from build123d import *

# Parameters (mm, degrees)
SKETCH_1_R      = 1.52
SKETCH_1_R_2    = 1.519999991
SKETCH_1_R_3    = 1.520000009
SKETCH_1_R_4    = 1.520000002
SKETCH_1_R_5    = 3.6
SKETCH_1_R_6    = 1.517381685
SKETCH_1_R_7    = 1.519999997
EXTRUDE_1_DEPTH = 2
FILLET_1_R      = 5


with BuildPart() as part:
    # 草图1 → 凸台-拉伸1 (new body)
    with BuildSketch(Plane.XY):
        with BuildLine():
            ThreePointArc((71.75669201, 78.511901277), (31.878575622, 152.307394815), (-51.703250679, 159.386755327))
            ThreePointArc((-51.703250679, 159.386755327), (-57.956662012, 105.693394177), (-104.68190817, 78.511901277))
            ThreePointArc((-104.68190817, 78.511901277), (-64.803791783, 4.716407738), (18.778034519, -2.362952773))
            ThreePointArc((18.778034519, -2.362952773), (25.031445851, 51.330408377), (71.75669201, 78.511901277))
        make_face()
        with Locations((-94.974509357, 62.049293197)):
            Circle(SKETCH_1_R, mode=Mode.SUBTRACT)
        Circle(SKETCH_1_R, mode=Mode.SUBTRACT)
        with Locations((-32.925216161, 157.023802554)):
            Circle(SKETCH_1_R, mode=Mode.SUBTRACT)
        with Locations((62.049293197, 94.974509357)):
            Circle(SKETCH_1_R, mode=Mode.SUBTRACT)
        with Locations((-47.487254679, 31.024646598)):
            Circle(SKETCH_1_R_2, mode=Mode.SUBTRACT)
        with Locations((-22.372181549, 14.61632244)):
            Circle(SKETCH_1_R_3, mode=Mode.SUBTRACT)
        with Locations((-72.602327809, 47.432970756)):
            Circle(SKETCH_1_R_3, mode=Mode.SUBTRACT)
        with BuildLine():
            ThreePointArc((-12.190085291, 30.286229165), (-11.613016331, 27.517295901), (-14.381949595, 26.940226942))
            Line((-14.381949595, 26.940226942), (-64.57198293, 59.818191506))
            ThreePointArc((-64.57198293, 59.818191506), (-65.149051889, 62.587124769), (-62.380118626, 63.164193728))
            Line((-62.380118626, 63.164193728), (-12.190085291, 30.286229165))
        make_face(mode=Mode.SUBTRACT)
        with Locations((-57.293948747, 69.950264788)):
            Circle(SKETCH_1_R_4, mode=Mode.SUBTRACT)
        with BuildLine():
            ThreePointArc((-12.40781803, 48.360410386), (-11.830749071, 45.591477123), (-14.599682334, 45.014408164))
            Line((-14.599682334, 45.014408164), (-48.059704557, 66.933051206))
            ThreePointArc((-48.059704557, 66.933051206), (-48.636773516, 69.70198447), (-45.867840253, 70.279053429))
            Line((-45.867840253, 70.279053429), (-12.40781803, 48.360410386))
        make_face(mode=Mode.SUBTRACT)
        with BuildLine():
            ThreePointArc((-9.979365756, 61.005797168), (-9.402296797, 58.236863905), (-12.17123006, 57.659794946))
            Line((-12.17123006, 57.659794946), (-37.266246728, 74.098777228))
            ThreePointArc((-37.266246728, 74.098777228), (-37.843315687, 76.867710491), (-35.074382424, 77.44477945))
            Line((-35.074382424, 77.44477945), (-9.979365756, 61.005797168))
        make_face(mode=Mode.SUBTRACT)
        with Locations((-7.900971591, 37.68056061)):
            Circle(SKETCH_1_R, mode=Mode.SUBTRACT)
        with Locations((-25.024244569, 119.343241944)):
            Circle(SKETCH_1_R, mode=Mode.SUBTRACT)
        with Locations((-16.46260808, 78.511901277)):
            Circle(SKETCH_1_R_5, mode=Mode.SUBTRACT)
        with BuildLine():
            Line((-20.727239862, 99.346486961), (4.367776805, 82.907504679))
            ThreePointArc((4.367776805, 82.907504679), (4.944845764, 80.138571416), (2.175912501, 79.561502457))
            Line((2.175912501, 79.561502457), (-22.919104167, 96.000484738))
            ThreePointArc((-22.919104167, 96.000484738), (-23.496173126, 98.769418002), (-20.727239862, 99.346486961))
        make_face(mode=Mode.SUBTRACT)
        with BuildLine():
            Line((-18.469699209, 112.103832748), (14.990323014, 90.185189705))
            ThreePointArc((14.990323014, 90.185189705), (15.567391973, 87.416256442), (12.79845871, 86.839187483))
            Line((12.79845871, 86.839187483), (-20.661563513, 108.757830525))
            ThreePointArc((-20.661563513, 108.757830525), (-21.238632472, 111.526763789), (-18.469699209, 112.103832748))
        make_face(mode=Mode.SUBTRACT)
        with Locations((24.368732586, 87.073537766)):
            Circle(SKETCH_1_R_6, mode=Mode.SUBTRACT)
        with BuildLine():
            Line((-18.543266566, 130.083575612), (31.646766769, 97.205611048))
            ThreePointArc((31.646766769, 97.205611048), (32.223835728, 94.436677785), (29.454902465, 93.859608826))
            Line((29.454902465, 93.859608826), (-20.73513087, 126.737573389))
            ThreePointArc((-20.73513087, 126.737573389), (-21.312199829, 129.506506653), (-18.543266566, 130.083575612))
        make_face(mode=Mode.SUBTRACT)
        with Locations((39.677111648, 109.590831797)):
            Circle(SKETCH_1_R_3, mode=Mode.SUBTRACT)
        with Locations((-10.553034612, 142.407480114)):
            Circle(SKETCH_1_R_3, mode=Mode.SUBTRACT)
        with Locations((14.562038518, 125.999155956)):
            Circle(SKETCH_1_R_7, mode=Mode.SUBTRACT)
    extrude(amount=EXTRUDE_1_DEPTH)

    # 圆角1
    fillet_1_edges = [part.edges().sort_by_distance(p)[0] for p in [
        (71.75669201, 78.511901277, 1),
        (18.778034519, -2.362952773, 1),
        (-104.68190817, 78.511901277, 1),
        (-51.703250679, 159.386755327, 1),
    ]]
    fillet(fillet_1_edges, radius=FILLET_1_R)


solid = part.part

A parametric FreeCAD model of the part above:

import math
import FreeCAD as App
import Part
import Sketcher
Q = App.Units.Quantity


def edges_at(feature, points):
    """Names of the edges that pass closest to the given points."""
    edges = feature.Shape.Edges
    near = lambda p: min(range(len(edges)), key=lambda i: edges[i].distToShape(Part.Vertex(*p))[0])
    return sorted({f"Edge{near(p) + 1}" for p in points})

doc = App.newDocument("Part")
body = doc.addObject("PartDesign::Body", "Body")

# Sketch on XY plane
sketch1 = body.newObject("Sketcher::SketchObject", "Sketch")
sketch1.AttachmentSupport = (doc.getObject("XY_Plane"), [""])
sketch1.MapMode = "FlatFace"
sketch1.addGeometry(Part.ArcOfCircle(Part.Circle(App.Vector(-16.462608, 78.511901, 0), App.Vector(0, 0, 1), 88.2193), math.radians(0), math.radians(113.544822)), False)
sketch1.addGeometry(Part.ArcOfCircle(Part.Circle(App.Vector(-108.477669, 138.78817, 0), App.Vector(0, 0, 1), 60.395665), math.radians(-86.396687), math.radians(19.941509)), False)
sketch1.addGeometry(Part.ArcOfCircle(Part.Circle(App.Vector(-16.462608, 78.511901, 0), App.Vector(0, 0, 1), 88.2193), math.radians(180), math.radians(293.544822)), False)
sketch1.addGeometry(Part.ArcOfCircle(Part.Circle(App.Vector(75.552453, 18.235633, 0), App.Vector(0, 0, 1), 60.395665), math.radians(93.603313), math.radians(199.941509)), False)
sketch1.addGeometry(Part.Circle(App.Vector(-22.372182, 14.616322, 0), App.Vector(0, 0, 1), 1.52), False)
sketch1.addGeometry(Part.Circle(App.Vector(-47.487255, 31.024647, 0), App.Vector(0, 0, 1), 1.52), False)
sketch1.addGeometry(Part.Circle(App.Vector(-72.602328, 47.432971, 0), App.Vector(0, 0, 1), 1.52), False)
sketch1.addGeometry(Part.Circle(App.Vector(-94.974509, 62.049293, 0), App.Vector(0, 0, 1), 1.52), False)
sketch1.addGeometry(Part.Circle(App.Vector(-57.293949, 69.950265, 0), App.Vector(0, 0, 1), 1.52), False)
sketch1.addGeometry(Part.LineSegment(App.Vector(-62.380119, 63.164194, 0), App.Vector(-12.190085, 30.286229, 0)), False)
sketch1.addGeometry(Part.ArcOfCircle(Part.Circle(App.Vector(-13.286017, 28.613228, 0), App.Vector(0, 0, 1), 2), math.radians(-123.227589), math.radians(56.772411)), False)
sketch1.addGeometry(Part.LineSegment(App.Vector(-14.38195, 26.940227, 0), App.Vector(-64.571983, 59.818192, 0)), False)
sketch1.addGeometry(Part.ArcOfCircle(Part.Circle(App.Vector(-63.476051, 61.491193, 0), App.Vector(0, 0, 1), 2), math.radians(56.772411), math.radians(236.772411)), False)
sketch1.addGeometry(Part.LineSegment(App.Vector(-45.86784, 70.279053, 0), App.Vector(-12.407818, 48.36041, 0)), False)
sketch1.addGeometry(Part.ArcOfCircle(Part.Circle(App.Vector(-13.50375, 46.687409, 0), App.Vector(0, 0, 1), 2), math.radians(-123.227589), math.radians(56.772411)), False)
sketch1.addGeometry(Part.LineSegment(App.Vector(-14.599682, 45.014408, 0), App.Vector(-48.059705, 66.933051, 0)), False)
sketch1.addGeometry(Part.ArcOfCircle(Part.Circle(App.Vector(-46.963772, 68.606052, 0), App.Vector(0, 0, 1), 2), math.radians(56.772411), math.radians(236.772411)), False)
sketch1.addGeometry(Part.LineSegment(App.Vector(-35.074382, 77.444779, 0), App.Vector(-9.979366, 61.005797, 0)), False)
sketch1.addGeometry(Part.ArcOfCircle(Part.Circle(App.Vector(-11.075298, 59.332796, 0), App.Vector(0, 0, 1), 2), math.radians(-123.227589), math.radians(56.772411)), False)
sketch1.addGeometry(Part.LineSegment(App.Vector(-12.17123, 57.659795, 0), App.Vector(-37.266247, 74.098777, 0)), False)
sketch1.addGeometry(Part.ArcOfCircle(Part.Circle(App.Vector(-36.170315, 75.771778, 0), App.Vector(0, 0, 1), 2), math.radians(56.772411), math.radians(236.772411)), False)
sketch1.addGeometry(Part.Circle(App.Vector(0, 0, 0), App.Vector(0, 0, 1), 1.52), False)
sketch1.addGeometry(Part.Circle(App.Vector(-7.900972, 37.680561, 0), App.Vector(0, 0, 1), 1.52), False)
sketch1.addGeometry(Part.Circle(App.Vector(-25.024245, 119.343242, 0), App.Vector(0, 0, 1), 1.52), False)
sketch1.addGeometry(Part.Circle(App.Vector(-32.925216, 157.023803, 0), App.Vector(0, 0, 1), 1.52), False)
sketch1.addGeometry(Part.Circle(App.Vector(-16.462608, 78.511901, 0), App.Vector(0, 0, 1), 3.6), False)
sketch1.addGeometry(Part.ArcOfCircle(Part.Circle(App.Vector(-21.823172, 97.673486, 0), App.Vector(0, 0, 1), 2), math.radians(56.772411), math.radians(236.772411)), False)
sketch1.addGeometry(Part.LineSegment(App.Vector(-20.72724, 99.346487, 0), App.Vector(4.367777, 82.907505, 0)), False)
sketch1.addGeometry(Part.ArcOfCircle(Part.Circle(App.Vector(3.271845, 81.234504, 0), App.Vector(0, 0, 1), 2), math.radians(-123.227589), math.radians(56.772411)), False)
sketch1.addGeometry(Part.LineSegment(App.Vector(2.175913, 79.561502, 0), App.Vector(-22.919104, 96.000485, 0)), False)
sketch1.addGeometry(Part.ArcOfCircle(Part.Circle(App.Vector(-19.565631, 110.430832, 0), App.Vector(0, 0, 1), 2), math.radians(56.772411), math.radians(236.772411)), False)
sketch1.addGeometry(Part.LineSegment(App.Vector(-18.469699, 112.103833, 0), App.Vector(14.990323, 90.18519, 0)), False)
sketch1.addGeometry(Part.ArcOfCircle(Part.Circle(App.Vector(13.894391, 88.512189, 0), App.Vector(0, 0, 1), 2), math.radians(-123.227589), math.radians(56.772411)), False)
sketch1.addGeometry(Part.LineSegment(App.Vector(12.798459, 86.839187, 0), App.Vector(-20.661564, 108.757831, 0)), False)
sketch1.addGeometry(Part.ArcOfCircle(Part.Circle(App.Vector(-19.639199, 128.410574, 0), App.Vector(0, 0, 1), 2), math.radians(56.772411), math.radians(236.772411)), False)
sketch1.addGeometry(Part.LineSegment(App.Vector(-18.543267, 130.083576, 0), App.Vector(31.646767, 97.205611, 0)), False)
sketch1.addGeometry(Part.ArcOfCircle(Part.Circle(App.Vector(30.550835, 95.53261, 0), App.Vector(0, 0, 1), 2), math.radians(-123.227589), math.radians(56.772411)), False)
sketch1.addGeometry(Part.LineSegment(App.Vector(29.454902, 93.859609, 0), App.Vector(-20.735131, 126.737573, 0)), False)
sketch1.addGeometry(Part.Circle(App.Vector(24.368733, 87.073538, 0), App.Vector(0, 0, 1), 1.517382), False)
sketch1.addGeometry(Part.Circle(App.Vector(62.049293, 94.974509, 0), App.Vector(0, 0, 1), 1.52), False)
sketch1.addGeometry(Part.Circle(App.Vector(39.677112, 109.590832, 0), App.Vector(0, 0, 1), 1.52), False)
sketch1.addGeometry(Part.Circle(App.Vector(14.562039, 125.999156, 0), App.Vector(0, 0, 1), 1.52), False)
sketch1.addGeometry(Part.Circle(App.Vector(-10.553035, 142.40748, 0), App.Vector(0, 0, 1), 1.52), False)
sketch1.addConstraint(Sketcher.Constraint("Coincident", 0, 2, 1, 2))
sketch1.addConstraint(Sketcher.Constraint("Coincident", 1, 1, 2, 1))
sketch1.addConstraint(Sketcher.Constraint("Coincident", 2, 2, 3, 2))
sketch1.addConstraint(Sketcher.Constraint("Coincident", 3, 1, 0, 1))
sketch1.addConstraint(Sketcher.Constraint("Tangent", 9, 2, 10, 2))
sketch1.addConstraint(Sketcher.Constraint("Tangent", 10, 1, 11, 1))
sketch1.addConstraint(Sketcher.Constraint("Tangent", 11, 2, 12, 2))
sketch1.addConstraint(Sketcher.Constraint("Tangent", 12, 1, 9, 1))
sketch1.addConstraint(Sketcher.Constraint("Tangent", 13, 2, 14, 2))
sketch1.addConstraint(Sketcher.Constraint("Tangent", 14, 1, 15, 1))
sketch1.addConstraint(Sketcher.Constraint("Tangent", 15, 2, 16, 2))
sketch1.addConstraint(Sketcher.Constraint("Tangent", 16, 1, 13, 1))
sketch1.addConstraint(Sketcher.Constraint("Tangent", 17, 2, 18, 2))
sketch1.addConstraint(Sketcher.Constraint("Tangent", 18, 1, 19, 1))
sketch1.addConstraint(Sketcher.Constraint("Tangent", 19, 2, 20, 2))
sketch1.addConstraint(Sketcher.Constraint("Tangent", 20, 1, 17, 1))
sketch1.addConstraint(Sketcher.Constraint("Tangent", 26, 1, 27, 1))
sketch1.addConstraint(Sketcher.Constraint("Tangent", 27, 2, 28, 2))
sketch1.addConstraint(Sketcher.Constraint("Tangent", 28, 1, 29, 1))
sketch1.addConstraint(Sketcher.Constraint("Tangent", 29, 2, 26, 2))
sketch1.addConstraint(Sketcher.Constraint("Tangent", 30, 1, 31, 1))
sketch1.addConstraint(Sketcher.Constraint("Tangent", 31, 2, 32, 2))
sketch1.addConstraint(Sketcher.Constraint("Tangent", 32, 1, 33, 1))
sketch1.addConstraint(Sketcher.Constraint("Tangent", 33, 2, 30, 2))
sketch1.addConstraint(Sketcher.Constraint("Tangent", 34, 1, 35, 1))
sketch1.addConstraint(Sketcher.Constraint("Tangent", 35, 2, 36, 2))
sketch1.addConstraint(Sketcher.Constraint("Tangent", 36, 1, 37, 1))
sketch1.addConstraint(Sketcher.Constraint("Tangent", 37, 2, 34, 2))
sketch1.addConstraint(Sketcher.Constraint("Coincident", 21, 3, -1, 1))
sketch1.addConstraint(Sketcher.Constraint("Coincident", 2, 3, 0, 3))
sketch1.addConstraint(Sketcher.Constraint("Coincident", 25, 3, 0, 3))
sketch1.addConstraint(Sketcher.Constraint("Equal", 0, 2))
sketch1.addConstraint(Sketcher.Constraint("Equal", 1, 3))
sketch1.addConstraint(Sketcher.Constraint("Equal", 4, 5))
sketch1.addConstraint(Sketcher.Constraint("Equal", 5, 6))
sketch1.addConstraint(Sketcher.Constraint("Equal", 6, 7))
sketch1.addConstraint(Sketcher.Constraint("Equal", 7, 8))
sketch1.addConstraint(Sketcher.Constraint("Equal", 10, 12))
sketch1.addConstraint(Sketcher.Constraint("Equal", 12, 14))
sketch1.addConstraint(Sketcher.Constraint("Equal", 14, 16))
sketch1.addConstraint(Sketcher.Constraint("Equal", 16, 18))
sketch1.addConstraint(Sketcher.Constraint("Equal", 18, 20))
sketch1.addConstraint(Sketcher.Constraint("Equal", 8, 21))
sketch1.addConstraint(Sketcher.Constraint("Equal", 21, 22))
sketch1.addConstraint(Sketcher.Constraint("Equal", 22, 23))
sketch1.addConstraint(Sketcher.Constraint("Equal", 23, 24))
sketch1.addConstraint(Sketcher.Constraint("Equal", 20, 26))
sketch1.addConstraint(Sketcher.Constraint("Equal", 26, 28))
sketch1.addConstraint(Sketcher.Constraint("Equal", 28, 30))
sketch1.addConstraint(Sketcher.Constraint("Equal", 30, 32))
sketch1.addConstraint(Sketcher.Constraint("Equal", 32, 34))
sketch1.addConstraint(Sketcher.Constraint("Equal", 34, 36))
sketch1.addConstraint(Sketcher.Constraint("Equal", 24, 39))
sketch1.addConstraint(Sketcher.Constraint("Equal", 39, 40))
sketch1.addConstraint(Sketcher.Constraint("Equal", 40, 41))
sketch1.addConstraint(Sketcher.Constraint("Equal", 41, 42))
sketch1.addConstraint(Sketcher.Constraint("Parallel", 11, 13))
sketch1.addConstraint(Sketcher.Constraint("Parallel", 15, 17))
sketch1.addConstraint(Sketcher.Constraint("Parallel", 19, 27))
sketch1.addConstraint(Sketcher.Constraint("Parallel", 29, 31))
sketch1.addConstraint(Sketcher.Constraint("Parallel", 33, 35))
sketch1.addConstraint(Sketcher.Constraint("Horizontal", 25, 3, 1, 1))
sketch1.addConstraint(Sketcher.Constraint("Horizontal", 1, 1, 3, 1))
sketch1.addConstraint(Sketcher.Constraint("Equal", 19, 27))
sketch1.addConstraint(Sketcher.Constraint("Equal", 15, 31))
sketch1.addConstraint(Sketcher.Constraint("Equal", 11, 35))
sketch1.addConstraint(Sketcher.Constraint("Radius", 10, Q("2 mm")))
sketch1.addConstraint(Sketcher.Constraint("Diameter", 25, Q("7.2 mm")))
sketch1.addConstraint(Sketcher.Constraint("Diameter", 4, Q("3.04 mm")))
sketch1.addConstraint(Sketcher.Constraint("Distance", 9, Q("60 mm")))
sketch1.addConstraint(Sketcher.Constraint("Distance", 13, Q("40 mm")))
sketch1.addConstraint(Sketcher.Constraint("Distance", 17, Q("30 mm")))
sketch1.addConstraint(Sketcher.Constraint("Radius", 0, Q("88.2193 mm")))
sketch1.addConstraint(Sketcher.Constraint("Diameter", 38, Q("3.034763 mm")))
sketch1.addConstraint(Sketcher.Constraint("Radius", 1, Q("60.395665 mm")))
sketch1.addConstraint(Sketcher.Constraint("DistanceX", 25, 3, 32, 3, Q("30.356999 mm")))
sketch1.addConstraint(Sketcher.Constraint("DistanceY", 10, 3, 9, 2, Q("1.673001 mm")))
sketch1.addConstraint(Sketcher.Constraint("DistanceY", -1, 1, 0, 3, Q("78.511901 mm")))
sketch1.addConstraint(Sketcher.Constraint("DistanceX", 34, 3, -1, 1, Q("19.639199 mm")))
sketch1.addConstraint(Sketcher.Constraint("DistanceX", 30, 1, -1, 1, Q("18.469699 mm")))
sketch1.addConstraint(Sketcher.Constraint("DistanceY", 6, 3, 1, 3, Q("91.355199 mm")))
sketch1.addConstraint(Sketcher.Constraint("DistanceX", 7, 3, 0, 3, Q("78.511901 mm")))
sketch1.addConstraint(Sketcher.Constraint("DistanceY", 12, 3, 7, 3, Q("0.558101 mm")))
sketch1.addConstraint(Sketcher.Constraint("DistanceY", 2, 3, 24, 3, Q("78.511901 mm")))
sketch1.addConstraint(Sketcher.Constraint("DistanceX", 20, 3, 24, 3, Q("3.245098 mm")))
sketch1.addConstraint(Sketcher.Constraint("DistanceY", 39, 3, 36, 3, Q("0.558101 mm")))
sketch1.addConstraint(Sketcher.Constraint("DistanceX", 39, 3, 3, 1, Q("9.707399 mm")))
sketch1.addConstraint(Sketcher.Constraint("DistanceX", 10, 1, 14, 3, Q("0.878199 mm")))
sketch1.addConstraint(Sketcher.Constraint("DistanceY", 25, 3, 28, 1, Q("1.049601 mm")))
sketch1.addConstraint(Sketcher.Constraint("DistanceX", 1, 3, -1, 1, Q("108.477669 mm")))
sketch1.addConstraint(Sketcher.Constraint("DistanceX", 4, 3, -1, 1, Q("22.372182 mm")))
sketch1.addConstraint(Sketcher.Constraint("DistanceX", 8, 3, -1, 1, Q("57.293949 mm")))
sketch1.addConstraint(Sketcher.Constraint("DistanceY", -1, 1, 10, 3, Q("28.613228 mm")))
sketch1.addConstraint(Sketcher.Constraint("DistanceX", 12, 3, -1, 1, Q("63.476051 mm")))
sketch1.addConstraint(Sketcher.Constraint("DistanceY", -1, 1, 14, 3, Q("46.687409 mm")))
sketch1.addConstraint(Sketcher.Constraint("DistanceY", -1, 1, 20, 3, Q("75.771778 mm")))
sketch1.addConstraint(Sketcher.Constraint("DistanceX", 22, 3, -1, 1, Q("7.900972 mm")))
sketch1.addConstraint(Sketcher.Constraint("DistanceY", -1, 1, 22, 3, Q("37.680561 mm")))
sketch1.addConstraint(Sketcher.Constraint("DistanceY", -1, 1, 23, 3, Q("119.343242 mm")))
sketch1.addConstraint(Sketcher.Constraint("DistanceY", -1, 1, 30, 3, Q("110.430832 mm")))
sketch1.addConstraint(Sketcher.Constraint("DistanceY", -1, 1, 36, 3, Q("95.53261 mm")))
sketch1.addConstraint(Sketcher.Constraint("DistanceX", -1, 1, 40, 3, Q("39.677112 mm")))
sketch1.addConstraint(Sketcher.Constraint("DistanceY", -1, 1, 40, 3, Q("109.590832 mm")))
sketch1.addConstraint(Sketcher.Constraint("DistanceX", -1, 1, 41, 3, Q("14.562039 mm")))
sketch1.addConstraint(Sketcher.Constraint("DistanceY", -1, 1, 42, 3, Q("142.40748 mm")))
sketch1.addConstraint(Sketcher.Constraint("DistanceX", 18, 1, -1, 1, Q("12.17123 mm")))
sketch1.addConstraint(Sketcher.Constraint("DistanceX", 26, 1, -1, 1, Q("20.72724 mm")))
sketch1.addConstraint(Sketcher.Constraint("DistanceX", 0, 3, 3, 3, Q("92.015061 mm")))
sketch1.addConstraint(Sketcher.Constraint("DistanceY", 4, 3, 0, 3, Q("63.895579 mm")))
sketch1.addConstraint(Sketcher.Constraint("DistanceX", 6, 3, 0, 3, Q("56.13972 mm")))
sketch1.addConstraint(Sketcher.Constraint("DistanceY", 7, 3, 8, 3, Q("7.900972 mm")))
sketch1.addConstraint(Sketcher.Constraint("DistanceY", 5, 3, 8, 3, Q("38.925618 mm")))
sketch1.addConstraint(Sketcher.Constraint("DistanceX", 20, 3, 23, 3, Q("11.14607 mm")))
sketch1.addConstraint(Sketcher.Constraint("DistanceX", 32, 3, 38, 3, Q("10.474342 mm")))
sketch1.addConstraint(Sketcher.Constraint("DistanceY", 38, 3, 32, 3, Q("1.438651 mm")))
sketch1.addConstraint(Sketcher.Constraint("DistanceY", 41, 3, 34, 3, Q("2.411419 mm")))
sketch1.addConstraint(Sketcher.Constraint("DistanceX", 24, 3, 42, 3, Q("22.372182 mm")))
sketch1.addConstraint(Sketcher.Constraint("DistanceX", 5, 3, -1, 1, Q("47.487255 mm")))
pad1 = body.newObject("PartDesign::Pad", "Pad")
pad1.Profile = sketch1
pad1.Length = 2
doc.recompute()

fillet = body.newObject("PartDesign::Fillet", "Fillet")
fillet.Base = (pad1, edges_at(pad1, [
    (71.757, 78.512, 1),
    (18.778, -2.363, 1),
    (-104.682, 78.512, 1),
    (-51.703, 159.387, 1),
]))
fillet.Radius = 5

doc.recompute()
